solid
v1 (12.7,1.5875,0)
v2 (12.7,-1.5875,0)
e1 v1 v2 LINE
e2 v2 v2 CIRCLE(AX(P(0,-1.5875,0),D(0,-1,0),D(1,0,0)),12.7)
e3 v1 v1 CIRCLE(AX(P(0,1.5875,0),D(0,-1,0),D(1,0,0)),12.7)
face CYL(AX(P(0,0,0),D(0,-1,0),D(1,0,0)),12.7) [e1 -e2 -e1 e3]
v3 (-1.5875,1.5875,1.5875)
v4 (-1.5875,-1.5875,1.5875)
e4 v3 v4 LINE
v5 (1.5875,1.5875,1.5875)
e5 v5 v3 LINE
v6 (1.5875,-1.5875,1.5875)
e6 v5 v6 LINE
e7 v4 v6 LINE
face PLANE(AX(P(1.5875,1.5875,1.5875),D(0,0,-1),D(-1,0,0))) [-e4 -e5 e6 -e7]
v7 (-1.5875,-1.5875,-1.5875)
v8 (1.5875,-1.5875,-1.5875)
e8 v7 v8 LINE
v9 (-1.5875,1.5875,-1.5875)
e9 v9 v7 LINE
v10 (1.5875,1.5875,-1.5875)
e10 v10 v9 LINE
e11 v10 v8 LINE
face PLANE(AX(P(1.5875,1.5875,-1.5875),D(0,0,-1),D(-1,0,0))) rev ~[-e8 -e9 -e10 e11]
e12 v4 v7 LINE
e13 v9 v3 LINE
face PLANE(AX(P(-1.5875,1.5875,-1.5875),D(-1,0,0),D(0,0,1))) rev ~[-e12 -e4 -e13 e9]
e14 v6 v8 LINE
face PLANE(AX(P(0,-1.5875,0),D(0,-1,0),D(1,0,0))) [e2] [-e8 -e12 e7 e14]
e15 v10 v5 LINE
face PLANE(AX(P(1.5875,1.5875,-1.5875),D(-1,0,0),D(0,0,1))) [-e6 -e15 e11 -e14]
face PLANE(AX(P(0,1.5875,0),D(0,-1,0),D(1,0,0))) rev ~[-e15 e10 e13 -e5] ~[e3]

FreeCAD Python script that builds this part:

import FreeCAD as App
import Part
import Sketcher
from FreeCAD import Vector
Q = App.Units.Quantity

doc = App.newDocument("Part")
body = doc.addObject("PartDesign::Body", "Body")

# Sketch on XZ plane
sketch1 = body.newObject("Sketcher::SketchObject", "Sketch")
sketch1.AttachmentSupport = (doc.getObject("XZ_Plane"), [""])
sketch1.MapMode = "FlatFace"
sketch1.addGeometry(Part.Circle(Vector(0, 0, 0), Vector(0, 0, 1), 12.7), False)
sketch1.addConstraint(Sketcher.Constraint("Coincident", 0, 3, -1, 1))
sketch1.addConstraint(Sketcher.Constraint("Diameter", 0, Q("1 in")))
pad1 = body.newObject("PartDesign::Pad", "Pad")
pad1.Profile = sketch1
pad1.Length = Q("0.125 in")
pad1.Midplane = True

# Sketch on XZ plane
sketch2 = body.newObject("Sketcher::SketchObject", "Sketch001")
sketch2.AttachmentSupport = (doc.getObject("XZ_Plane"), [""])
sketch2.MapMode = "FlatFace"
sketch2.AttachmentOffset = App.Placement(Vector(0, 0, -0.0625 * 25.4), App.Rotation())
sketch2.addGeometry(Part.LineSegment(Vector(1.5875, 1.5875, 0), Vector(1.5875, -1.5875, 0)), False)
sketch2.addGeometry(Part.LineSegment(Vector(1.5875, -1.5875, 0), Vector(-1.5875, -1.5875, 0)), False)
sketch2.addGeometry(Part.LineSegment(Vector(-1.5875, -1.5875, 0), Vector(-1.5875, 1.5875, 0)), False)
sketch2.addGeometry(Part.LineSegment(Vector(-1.5875, 1.5875, 0), Vector(1.5875, 1.5875, 0)), False)
sketch2.addConstraint(Sketcher.Constraint("Coincident", 0, 2, 1, 1))
sketch2.addConstraint(Sketcher.Constraint("Coincident", 1, 2, 2, 1))
sketch2.addConstraint(Sketcher.Constraint("Coincident", 2, 2, 3, 1))
sketch2.addConstraint(Sketcher.Constraint("Coincident", 3, 2, 0, 1))
sketch2.addConstraint(Sketcher.Constraint("Vertical", 0))
sketch2.addConstraint(Sketcher.Constraint("Horizontal", 1))
sketch2.addConstraint(Sketcher.Constraint("Vertical", 2))
sketch2.addConstraint(Sketcher.Constraint("Horizontal", 3))
sketch2.addConstraint(Sketcher.Constraint("Symmetric", 0, 2, 2, 2, -1, 1))
sketch2.addConstraint(Sketcher.Constraint("Equal", 3, 0))
sketch2.addConstraint(Sketcher.Constraint("DistanceX", 1, 2, 1, 1, Q("0.125 in")))
pocket1 = body.newObject("PartDesign::Pocket", "Pocket")
pocket1.Profile = sketch2
pocket1.Type = "ThroughAll"
pocket1.Reversed = True

doc.recompute()
